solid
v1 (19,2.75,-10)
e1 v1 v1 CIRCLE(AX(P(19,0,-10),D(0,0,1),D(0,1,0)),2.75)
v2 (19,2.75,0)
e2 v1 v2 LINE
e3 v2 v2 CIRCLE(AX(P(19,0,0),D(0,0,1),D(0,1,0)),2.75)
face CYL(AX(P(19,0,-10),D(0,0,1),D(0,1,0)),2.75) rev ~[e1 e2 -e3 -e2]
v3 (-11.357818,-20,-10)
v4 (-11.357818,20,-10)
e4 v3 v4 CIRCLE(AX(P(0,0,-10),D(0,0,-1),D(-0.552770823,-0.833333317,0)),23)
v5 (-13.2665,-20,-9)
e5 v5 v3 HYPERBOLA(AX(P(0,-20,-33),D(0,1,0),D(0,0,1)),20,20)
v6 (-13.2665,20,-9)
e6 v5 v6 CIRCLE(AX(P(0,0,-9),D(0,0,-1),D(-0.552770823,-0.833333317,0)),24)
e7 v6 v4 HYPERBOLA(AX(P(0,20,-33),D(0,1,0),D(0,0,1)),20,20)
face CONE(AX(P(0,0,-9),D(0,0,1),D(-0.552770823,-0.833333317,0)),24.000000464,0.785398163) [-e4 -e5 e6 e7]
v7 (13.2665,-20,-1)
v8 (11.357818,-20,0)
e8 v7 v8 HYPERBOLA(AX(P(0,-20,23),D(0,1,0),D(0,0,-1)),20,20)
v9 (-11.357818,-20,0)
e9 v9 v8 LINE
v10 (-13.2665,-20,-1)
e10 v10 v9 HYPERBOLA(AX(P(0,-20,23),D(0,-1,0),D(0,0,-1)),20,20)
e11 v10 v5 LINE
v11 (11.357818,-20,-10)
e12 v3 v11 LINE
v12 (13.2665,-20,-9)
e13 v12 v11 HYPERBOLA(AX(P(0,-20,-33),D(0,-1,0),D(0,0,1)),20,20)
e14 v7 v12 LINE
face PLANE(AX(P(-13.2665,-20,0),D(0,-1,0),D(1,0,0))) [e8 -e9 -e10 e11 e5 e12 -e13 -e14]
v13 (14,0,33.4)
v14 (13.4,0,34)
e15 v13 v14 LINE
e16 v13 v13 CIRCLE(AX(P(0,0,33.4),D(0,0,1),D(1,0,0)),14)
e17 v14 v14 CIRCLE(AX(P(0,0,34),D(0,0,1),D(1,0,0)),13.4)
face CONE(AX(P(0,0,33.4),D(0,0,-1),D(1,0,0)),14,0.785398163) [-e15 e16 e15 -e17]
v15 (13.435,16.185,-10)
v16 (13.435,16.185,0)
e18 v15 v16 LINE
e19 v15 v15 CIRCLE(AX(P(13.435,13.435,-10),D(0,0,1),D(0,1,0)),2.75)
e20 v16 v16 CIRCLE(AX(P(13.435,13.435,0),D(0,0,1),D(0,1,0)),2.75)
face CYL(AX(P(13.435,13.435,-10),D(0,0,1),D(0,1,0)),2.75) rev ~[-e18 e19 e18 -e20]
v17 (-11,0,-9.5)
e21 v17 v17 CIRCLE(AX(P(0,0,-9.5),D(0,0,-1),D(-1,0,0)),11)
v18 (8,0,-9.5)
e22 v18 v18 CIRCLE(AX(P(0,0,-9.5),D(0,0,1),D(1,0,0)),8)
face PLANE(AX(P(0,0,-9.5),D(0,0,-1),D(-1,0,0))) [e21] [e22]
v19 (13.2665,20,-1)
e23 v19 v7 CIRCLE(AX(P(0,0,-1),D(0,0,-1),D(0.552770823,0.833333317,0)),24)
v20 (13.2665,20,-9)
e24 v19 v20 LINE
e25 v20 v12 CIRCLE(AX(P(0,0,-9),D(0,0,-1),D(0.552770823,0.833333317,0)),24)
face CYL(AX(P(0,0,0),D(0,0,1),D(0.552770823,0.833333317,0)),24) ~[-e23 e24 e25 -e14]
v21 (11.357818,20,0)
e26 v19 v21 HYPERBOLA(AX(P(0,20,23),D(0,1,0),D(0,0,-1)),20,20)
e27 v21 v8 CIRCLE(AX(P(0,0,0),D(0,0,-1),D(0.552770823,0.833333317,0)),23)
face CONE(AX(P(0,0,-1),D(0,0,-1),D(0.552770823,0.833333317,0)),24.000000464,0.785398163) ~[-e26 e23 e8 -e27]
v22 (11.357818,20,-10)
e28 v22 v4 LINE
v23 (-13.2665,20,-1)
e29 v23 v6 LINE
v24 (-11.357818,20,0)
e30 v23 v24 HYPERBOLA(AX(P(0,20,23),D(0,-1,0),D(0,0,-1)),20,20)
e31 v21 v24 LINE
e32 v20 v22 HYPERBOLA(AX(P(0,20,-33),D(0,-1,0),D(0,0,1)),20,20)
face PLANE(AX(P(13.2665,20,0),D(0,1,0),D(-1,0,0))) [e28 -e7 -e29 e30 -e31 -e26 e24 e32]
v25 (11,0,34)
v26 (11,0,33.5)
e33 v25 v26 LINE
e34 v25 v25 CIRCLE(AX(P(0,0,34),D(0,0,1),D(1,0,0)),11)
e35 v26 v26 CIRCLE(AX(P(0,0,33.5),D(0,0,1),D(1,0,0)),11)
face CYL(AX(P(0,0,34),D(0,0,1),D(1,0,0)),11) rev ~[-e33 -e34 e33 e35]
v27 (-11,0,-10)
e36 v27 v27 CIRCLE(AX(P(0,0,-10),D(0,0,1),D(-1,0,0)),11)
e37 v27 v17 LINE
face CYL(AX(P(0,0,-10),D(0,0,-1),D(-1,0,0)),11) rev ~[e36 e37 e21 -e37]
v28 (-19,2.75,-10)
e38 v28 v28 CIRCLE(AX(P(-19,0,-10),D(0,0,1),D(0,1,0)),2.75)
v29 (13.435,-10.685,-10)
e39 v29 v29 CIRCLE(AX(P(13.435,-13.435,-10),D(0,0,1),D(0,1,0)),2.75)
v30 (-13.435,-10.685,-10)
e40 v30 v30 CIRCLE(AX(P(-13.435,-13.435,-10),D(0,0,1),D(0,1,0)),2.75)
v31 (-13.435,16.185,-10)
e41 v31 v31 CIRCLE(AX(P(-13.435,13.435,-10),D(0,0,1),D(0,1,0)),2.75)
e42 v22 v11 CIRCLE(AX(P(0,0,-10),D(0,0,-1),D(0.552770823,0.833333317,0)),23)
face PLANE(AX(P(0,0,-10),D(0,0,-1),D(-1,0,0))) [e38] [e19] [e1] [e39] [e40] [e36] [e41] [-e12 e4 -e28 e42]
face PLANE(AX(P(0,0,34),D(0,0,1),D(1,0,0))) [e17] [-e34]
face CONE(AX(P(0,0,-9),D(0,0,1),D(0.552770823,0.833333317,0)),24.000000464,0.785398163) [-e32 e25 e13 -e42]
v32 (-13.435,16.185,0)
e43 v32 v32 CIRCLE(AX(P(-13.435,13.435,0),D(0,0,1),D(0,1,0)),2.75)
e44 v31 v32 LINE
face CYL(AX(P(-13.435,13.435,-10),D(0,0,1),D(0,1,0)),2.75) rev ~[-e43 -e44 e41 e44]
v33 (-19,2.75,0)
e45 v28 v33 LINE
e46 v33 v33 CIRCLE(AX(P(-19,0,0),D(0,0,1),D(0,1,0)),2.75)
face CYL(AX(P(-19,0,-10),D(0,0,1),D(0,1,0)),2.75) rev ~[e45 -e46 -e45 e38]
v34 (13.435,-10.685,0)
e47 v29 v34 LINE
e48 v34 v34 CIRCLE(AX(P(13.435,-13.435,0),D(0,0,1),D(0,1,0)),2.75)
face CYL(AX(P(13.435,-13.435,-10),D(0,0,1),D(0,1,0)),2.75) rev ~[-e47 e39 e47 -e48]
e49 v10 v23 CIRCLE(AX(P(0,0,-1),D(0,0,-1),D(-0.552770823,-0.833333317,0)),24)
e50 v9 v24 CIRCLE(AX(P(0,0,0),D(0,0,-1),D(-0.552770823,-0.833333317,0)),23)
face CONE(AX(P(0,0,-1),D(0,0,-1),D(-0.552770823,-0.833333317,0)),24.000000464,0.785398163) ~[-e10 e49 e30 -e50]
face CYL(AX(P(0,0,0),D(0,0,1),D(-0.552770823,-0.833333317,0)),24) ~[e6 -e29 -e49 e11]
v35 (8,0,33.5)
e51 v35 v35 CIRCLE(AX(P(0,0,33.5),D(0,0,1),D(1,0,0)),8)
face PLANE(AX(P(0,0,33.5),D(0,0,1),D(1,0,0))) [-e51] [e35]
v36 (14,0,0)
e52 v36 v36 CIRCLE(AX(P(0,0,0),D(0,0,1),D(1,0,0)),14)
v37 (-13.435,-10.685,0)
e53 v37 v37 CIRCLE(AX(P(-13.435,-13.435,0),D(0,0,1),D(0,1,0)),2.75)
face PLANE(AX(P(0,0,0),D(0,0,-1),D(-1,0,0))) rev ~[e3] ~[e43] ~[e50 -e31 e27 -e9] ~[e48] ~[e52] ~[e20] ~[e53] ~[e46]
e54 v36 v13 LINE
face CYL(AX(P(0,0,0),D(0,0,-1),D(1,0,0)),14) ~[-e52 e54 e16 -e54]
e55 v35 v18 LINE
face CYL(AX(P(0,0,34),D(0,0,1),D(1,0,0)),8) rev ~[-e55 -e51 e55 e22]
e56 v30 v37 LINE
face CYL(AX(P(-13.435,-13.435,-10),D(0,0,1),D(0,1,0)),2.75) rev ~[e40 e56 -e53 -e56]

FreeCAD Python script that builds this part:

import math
import FreeCAD as App
import Part
import Sketcher
Q = App.Units.Quantity


def edges_at(feature, points):
    """Names of the edges that pass closest to the given points."""
    edges = feature.Shape.Edges
    near = lambda p: min(range(len(edges)), key=lambda i: edges[i].distToShape(Part.Vertex(*p))[0])
    return sorted({f"Edge{near(p) + 1}" for p in points})

doc = App.newDocument("Part")
body = doc.addObject("PartDesign::Body", "Body")

# Sketch on XY plane
sketch1 = doc.addObject("Sketcher::SketchObject", "Sketch")
body.addObject(sketch1)
sketch1.AttachmentSupport = (doc.XY_Plane, [""])
sketch1.MapMode = "FlatFace"
sketch1.addGeometry(Part.Circle(App.Vector(0, 0, 0), App.Vector(0, 0, 1), 14), False)
sketch1.addConstraint(Sketcher.Constraint("Coincident", 0, 3, -1, 1))
sketch1.addConstraint(Sketcher.Constraint("Diameter", 0, Q("28 mm")))
pad1 = doc.addObject("PartDesign::Pad", "Pad")
body.addObject(pad1)
pad1.Profile = sketch1
pad1.Length = 34

# Sketch on XY plane
sketch2 = doc.addObject("Sketcher::SketchObject", "Sketch001")
body.addObject(sketch2)
sketch2.AttachmentSupport = (doc.XY_Plane, [""])
sketch2.MapMode = "FlatFace"
sketch2.addGeometry(Part.LineSegment(App.Vector(13.2665, -20, 0), App.Vector(-13.2665, -20, 0)), False)
sketch2.addGeometry(Part.ArcOfCircle(Part.Circle(App.Vector(0, 0, 0), App.Vector(0, 0, 1), 24), math.radians(123.557311), math.radians(236.442689)), False)
sketch2.addGeometry(Part.LineSegment(App.Vector(-13.2665, 20, 0), App.Vector(13.2665, 20, 0)), False)
sketch2.addGeometry(Part.ArcOfCircle(Part.Circle(App.Vector(0, 0, 0), App.Vector(0, 0, 1), 24), math.radians(-56.442689), math.radians(56.442689)), False)
sketch2.addConstraint(Sketcher.Constraint("Coincident", 0, 2, 1, 2))
sketch2.addConstraint(Sketcher.Constraint("Coincident", 1, 1, 2, 1))
sketch2.addConstraint(Sketcher.Constraint("Coincident", 2, 2, 3, 2))
sketch2.addConstraint(Sketcher.Constraint("Coincident", 3, 1, 0, 1))
sketch2.addConstraint(Sketcher.Constraint("Horizontal", 0))
sketch2.addConstraint(Sketcher.Constraint("Horizontal", 2))
sketch2.addConstraint(Sketcher.Constraint("Coincident", 1, 3, -1, 1))
sketch2.addConstraint(Sketcher.Constraint("Coincident", 3, 3, -1, 1))
sketch2.addConstraint(Sketcher.Constraint("Equal", 1, 3))
sketch2.addConstraint(Sketcher.Constraint("Vertical", 0, 2, 1, 1))
sketch2.addConstraint(Sketcher.Constraint("Radius", 1, Q("24 mm")))
sketch2.addConstraint(Sketcher.Constraint("DistanceY", 0, 2, -1, 1, Q("20 mm")))
pad2 = doc.addObject("PartDesign::Pad", "Pad001")
body.addObject(pad2)
pad2.Profile = sketch2
pad2.Length = 10
pad2.Reversed = True

# Sketch on XY plane
sketch3 = doc.addObject("Sketcher::SketchObject", "Sketch002")
body.addObject(sketch3)
sketch3.AttachmentSupport = (doc.XY_Plane, [""])
sketch3.MapMode = "FlatFace"
sketch3.AttachmentOffset = App.Placement(App.Vector(0, 0, 34), App.Rotation())
sketch3.addGeometry(Part.Circle(App.Vector(0, 0, 0), App.Vector(0, 0, 1), 8), False)
sketch3.addConstraint(Sketcher.Constraint("Coincident", 0, 3, -1, 1))
sketch3.addConstraint(Sketcher.Constraint("Diameter", 0, Q("16 mm")))
pocket1 = doc.addObject("PartDesign::Pocket", "Pocket")
body.addObject(pocket1)
pocket1.Profile = sketch3
pocket1.Length = 44

# Sketch on XY plane
sketch4 = doc.addObject("Sketcher::SketchObject", "Sketch003")
body.addObject(sketch4)
sketch4.AttachmentSupport = (doc.XY_Plane, [""])
sketch4.MapMode = "FlatFace"
sketch4.AttachmentOffset = App.Placement(App.Vector(0, 0, 34), App.Rotation())
sketch4.addGeometry(Part.Circle(App.Vector(0, 0, 0), App.Vector(0, 0, 1), 11), False)
sketch4.addGeometry(Part.Circle(App.Vector(0, 0, 0), App.Vector(0, 0, 1), 8), False)
sketch4.addConstraint(Sketcher.Constraint("Coincident", 0, 3, -1, 1))
sketch4.addConstraint(Sketcher.Constraint("Coincident", 1, 3, -1, 1))
sketch4.addConstraint(Sketcher.Constraint("Diameter", 1, Q("16 mm")))
sketch4.addConstraint(Sketcher.Constraint("Diameter", 0, Q("22 mm")))
pocket2 = doc.addObject("PartDesign::Pocket", "Pocket001")
body.addObject(pocket2)
pocket2.Profile = sketch4
pocket2.Length = 0.5

# Sketch on XY plane
sketch5 = doc.addObject("Sketcher::SketchObject", "Sketch004")
body.addObject(sketch5)
sketch5.AttachmentSupport = (doc.XY_Plane, [""])
sketch5.MapMode = "FlatFace"
sketch5.AttachmentOffset = App.Placement(App.Vector(0, 0, -10), App.Rotation())
sketch5.addGeometry(Part.Circle(App.Vector(0, 0, 0), App.Vector(0, 0, 1), 11), False)
sketch5.addGeometry(Part.Circle(App.Vector(0, 0, 0), App.Vector(0, 0, 1), 8), False)
sketch5.addConstraint(Sketcher.Constraint("Coincident", 0, 3, -1, 1))
sketch5.addConstraint(Sketcher.Constraint("Coincident", 1, 3, -1, 1))
sketch5.addConstraint(Sketcher.Constraint("Diameter", 0, Q("22 mm")))
sketch5.addConstraint(Sketcher.Constraint("Diameter", 1, Q("16 mm")))
pocket3 = doc.addObject("PartDesign::Pocket", "Pocket002")
body.addObject(pocket3)
pocket3.Profile = sketch5
pocket3.Length = 0.5
pocket3.Reversed = True

# Sketch on XY plane
sketch6 = doc.addObject("Sketcher::SketchObject", "Sketch005")
body.addObject(sketch6)
sketch6.AttachmentSupport = (doc.XY_Plane, [""])
sketch6.MapMode = "FlatFace"
sketch6.AttachmentOffset = App.Placement(App.Vector(0, 0, -10), App.Rotation())
sketch6.addGeometry(Part.Circle(App.Vector(13.435, -13.435, 0), App.Vector(0, 0, 1), 2.75), False)
sketch6.addGeometry(Part.Circle(App.Vector(19, 0, 0), App.Vector(0, 0, 1), 2.75), False)
sketch6.addGeometry(Part.Circle(App.Vector(13.435, 13.435, 0), App.Vector(0, 0, 1), 2.75), False)
sketch6.addGeometry(Part.Circle(App.Vector(-13.435, 13.435, 0), App.Vector(0, 0, 1), 2.75), False)
sketch6.addGeometry(Part.Circle(App.Vector(-19, 0, 0), App.Vector(0, 0, 1), 2.75), False)
sketch6.addGeometry(Part.Circle(App.Vector(-13.435, -13.435, 0), App.Vector(0, 0, 1), 2.75), False)
sketch6.addConstraint(Sketcher.Constraint("Equal", 0, 1))
sketch6.addConstraint(Sketcher.Constraint("Equal", 1, 2))
sketch6.addConstraint(Sketcher.Constraint("Equal", 2, 3))
sketch6.addConstraint(Sketcher.Constraint("Equal", 3, 4))
sketch6.addConstraint(Sketcher.Constraint("Equal", 4, 5))
sketch6.addConstraint(Sketcher.Constraint("Symmetric", 0, 3, 3, 3, -1, 1))
sketch6.addConstraint(Sketcher.Constraint("Symmetric", 1, 3, 4, 3, -1, 1))
sketch6.addConstraint(Sketcher.Constraint("Symmetric", 2, 3, 5, 3, -1, 1))
sketch6.addConstraint(Sketcher.Constraint("Symmetric", 2, 3, 3, 3, -2))
sketch6.addConstraint(Sketcher.Constraint("PointOnObject", 1, 3, -1))
sketch6.addConstraint(Sketcher.Constraint("Diameter", 0, Q("5.5 mm")))
sketch6.addConstraint(Sketcher.Constraint("DistanceX", -1, 1, 1, 3, Q("19 mm")))
sketch6.addConstraint(Sketcher.Constraint("DistanceY", 0, 3, 2, 3, Q("26.87 mm")))
sketch6.addConstraint(Sketcher.Constraint("DistanceX", 3, 3, 2, 3, Q("26.87 mm")))
doc.recompute()
hole = doc.addObject("PartDesign::Hole", "Hole")
body.addObject(hole)
hole.Profile = sketch6
hole.ThreadType = "None"
hole.Diameter = 5.5
hole.DepthType = "ThroughAll"
hole.Reversed = True
doc.recompute()

chamfer = doc.addObject("PartDesign::Chamfer", "Chamfer")
body.addObject(chamfer)
chamfer.Base = (hole, edges_at(hole, [
    (-24, 0, 0),
    (-24, 0, -10),
    (24, 0, 0),
    (24, 0, -10),
]))
chamfer.Size = 1
doc.recompute()

chamfer2 = doc.addObject("PartDesign::Chamfer", "Chamfer001")
body.addObject(chamfer2)
chamfer2.Base = (chamfer, edges_at(chamfer, [(-14, 0, 34)]))
chamfer2.Size = 0.6

doc.recompute()
